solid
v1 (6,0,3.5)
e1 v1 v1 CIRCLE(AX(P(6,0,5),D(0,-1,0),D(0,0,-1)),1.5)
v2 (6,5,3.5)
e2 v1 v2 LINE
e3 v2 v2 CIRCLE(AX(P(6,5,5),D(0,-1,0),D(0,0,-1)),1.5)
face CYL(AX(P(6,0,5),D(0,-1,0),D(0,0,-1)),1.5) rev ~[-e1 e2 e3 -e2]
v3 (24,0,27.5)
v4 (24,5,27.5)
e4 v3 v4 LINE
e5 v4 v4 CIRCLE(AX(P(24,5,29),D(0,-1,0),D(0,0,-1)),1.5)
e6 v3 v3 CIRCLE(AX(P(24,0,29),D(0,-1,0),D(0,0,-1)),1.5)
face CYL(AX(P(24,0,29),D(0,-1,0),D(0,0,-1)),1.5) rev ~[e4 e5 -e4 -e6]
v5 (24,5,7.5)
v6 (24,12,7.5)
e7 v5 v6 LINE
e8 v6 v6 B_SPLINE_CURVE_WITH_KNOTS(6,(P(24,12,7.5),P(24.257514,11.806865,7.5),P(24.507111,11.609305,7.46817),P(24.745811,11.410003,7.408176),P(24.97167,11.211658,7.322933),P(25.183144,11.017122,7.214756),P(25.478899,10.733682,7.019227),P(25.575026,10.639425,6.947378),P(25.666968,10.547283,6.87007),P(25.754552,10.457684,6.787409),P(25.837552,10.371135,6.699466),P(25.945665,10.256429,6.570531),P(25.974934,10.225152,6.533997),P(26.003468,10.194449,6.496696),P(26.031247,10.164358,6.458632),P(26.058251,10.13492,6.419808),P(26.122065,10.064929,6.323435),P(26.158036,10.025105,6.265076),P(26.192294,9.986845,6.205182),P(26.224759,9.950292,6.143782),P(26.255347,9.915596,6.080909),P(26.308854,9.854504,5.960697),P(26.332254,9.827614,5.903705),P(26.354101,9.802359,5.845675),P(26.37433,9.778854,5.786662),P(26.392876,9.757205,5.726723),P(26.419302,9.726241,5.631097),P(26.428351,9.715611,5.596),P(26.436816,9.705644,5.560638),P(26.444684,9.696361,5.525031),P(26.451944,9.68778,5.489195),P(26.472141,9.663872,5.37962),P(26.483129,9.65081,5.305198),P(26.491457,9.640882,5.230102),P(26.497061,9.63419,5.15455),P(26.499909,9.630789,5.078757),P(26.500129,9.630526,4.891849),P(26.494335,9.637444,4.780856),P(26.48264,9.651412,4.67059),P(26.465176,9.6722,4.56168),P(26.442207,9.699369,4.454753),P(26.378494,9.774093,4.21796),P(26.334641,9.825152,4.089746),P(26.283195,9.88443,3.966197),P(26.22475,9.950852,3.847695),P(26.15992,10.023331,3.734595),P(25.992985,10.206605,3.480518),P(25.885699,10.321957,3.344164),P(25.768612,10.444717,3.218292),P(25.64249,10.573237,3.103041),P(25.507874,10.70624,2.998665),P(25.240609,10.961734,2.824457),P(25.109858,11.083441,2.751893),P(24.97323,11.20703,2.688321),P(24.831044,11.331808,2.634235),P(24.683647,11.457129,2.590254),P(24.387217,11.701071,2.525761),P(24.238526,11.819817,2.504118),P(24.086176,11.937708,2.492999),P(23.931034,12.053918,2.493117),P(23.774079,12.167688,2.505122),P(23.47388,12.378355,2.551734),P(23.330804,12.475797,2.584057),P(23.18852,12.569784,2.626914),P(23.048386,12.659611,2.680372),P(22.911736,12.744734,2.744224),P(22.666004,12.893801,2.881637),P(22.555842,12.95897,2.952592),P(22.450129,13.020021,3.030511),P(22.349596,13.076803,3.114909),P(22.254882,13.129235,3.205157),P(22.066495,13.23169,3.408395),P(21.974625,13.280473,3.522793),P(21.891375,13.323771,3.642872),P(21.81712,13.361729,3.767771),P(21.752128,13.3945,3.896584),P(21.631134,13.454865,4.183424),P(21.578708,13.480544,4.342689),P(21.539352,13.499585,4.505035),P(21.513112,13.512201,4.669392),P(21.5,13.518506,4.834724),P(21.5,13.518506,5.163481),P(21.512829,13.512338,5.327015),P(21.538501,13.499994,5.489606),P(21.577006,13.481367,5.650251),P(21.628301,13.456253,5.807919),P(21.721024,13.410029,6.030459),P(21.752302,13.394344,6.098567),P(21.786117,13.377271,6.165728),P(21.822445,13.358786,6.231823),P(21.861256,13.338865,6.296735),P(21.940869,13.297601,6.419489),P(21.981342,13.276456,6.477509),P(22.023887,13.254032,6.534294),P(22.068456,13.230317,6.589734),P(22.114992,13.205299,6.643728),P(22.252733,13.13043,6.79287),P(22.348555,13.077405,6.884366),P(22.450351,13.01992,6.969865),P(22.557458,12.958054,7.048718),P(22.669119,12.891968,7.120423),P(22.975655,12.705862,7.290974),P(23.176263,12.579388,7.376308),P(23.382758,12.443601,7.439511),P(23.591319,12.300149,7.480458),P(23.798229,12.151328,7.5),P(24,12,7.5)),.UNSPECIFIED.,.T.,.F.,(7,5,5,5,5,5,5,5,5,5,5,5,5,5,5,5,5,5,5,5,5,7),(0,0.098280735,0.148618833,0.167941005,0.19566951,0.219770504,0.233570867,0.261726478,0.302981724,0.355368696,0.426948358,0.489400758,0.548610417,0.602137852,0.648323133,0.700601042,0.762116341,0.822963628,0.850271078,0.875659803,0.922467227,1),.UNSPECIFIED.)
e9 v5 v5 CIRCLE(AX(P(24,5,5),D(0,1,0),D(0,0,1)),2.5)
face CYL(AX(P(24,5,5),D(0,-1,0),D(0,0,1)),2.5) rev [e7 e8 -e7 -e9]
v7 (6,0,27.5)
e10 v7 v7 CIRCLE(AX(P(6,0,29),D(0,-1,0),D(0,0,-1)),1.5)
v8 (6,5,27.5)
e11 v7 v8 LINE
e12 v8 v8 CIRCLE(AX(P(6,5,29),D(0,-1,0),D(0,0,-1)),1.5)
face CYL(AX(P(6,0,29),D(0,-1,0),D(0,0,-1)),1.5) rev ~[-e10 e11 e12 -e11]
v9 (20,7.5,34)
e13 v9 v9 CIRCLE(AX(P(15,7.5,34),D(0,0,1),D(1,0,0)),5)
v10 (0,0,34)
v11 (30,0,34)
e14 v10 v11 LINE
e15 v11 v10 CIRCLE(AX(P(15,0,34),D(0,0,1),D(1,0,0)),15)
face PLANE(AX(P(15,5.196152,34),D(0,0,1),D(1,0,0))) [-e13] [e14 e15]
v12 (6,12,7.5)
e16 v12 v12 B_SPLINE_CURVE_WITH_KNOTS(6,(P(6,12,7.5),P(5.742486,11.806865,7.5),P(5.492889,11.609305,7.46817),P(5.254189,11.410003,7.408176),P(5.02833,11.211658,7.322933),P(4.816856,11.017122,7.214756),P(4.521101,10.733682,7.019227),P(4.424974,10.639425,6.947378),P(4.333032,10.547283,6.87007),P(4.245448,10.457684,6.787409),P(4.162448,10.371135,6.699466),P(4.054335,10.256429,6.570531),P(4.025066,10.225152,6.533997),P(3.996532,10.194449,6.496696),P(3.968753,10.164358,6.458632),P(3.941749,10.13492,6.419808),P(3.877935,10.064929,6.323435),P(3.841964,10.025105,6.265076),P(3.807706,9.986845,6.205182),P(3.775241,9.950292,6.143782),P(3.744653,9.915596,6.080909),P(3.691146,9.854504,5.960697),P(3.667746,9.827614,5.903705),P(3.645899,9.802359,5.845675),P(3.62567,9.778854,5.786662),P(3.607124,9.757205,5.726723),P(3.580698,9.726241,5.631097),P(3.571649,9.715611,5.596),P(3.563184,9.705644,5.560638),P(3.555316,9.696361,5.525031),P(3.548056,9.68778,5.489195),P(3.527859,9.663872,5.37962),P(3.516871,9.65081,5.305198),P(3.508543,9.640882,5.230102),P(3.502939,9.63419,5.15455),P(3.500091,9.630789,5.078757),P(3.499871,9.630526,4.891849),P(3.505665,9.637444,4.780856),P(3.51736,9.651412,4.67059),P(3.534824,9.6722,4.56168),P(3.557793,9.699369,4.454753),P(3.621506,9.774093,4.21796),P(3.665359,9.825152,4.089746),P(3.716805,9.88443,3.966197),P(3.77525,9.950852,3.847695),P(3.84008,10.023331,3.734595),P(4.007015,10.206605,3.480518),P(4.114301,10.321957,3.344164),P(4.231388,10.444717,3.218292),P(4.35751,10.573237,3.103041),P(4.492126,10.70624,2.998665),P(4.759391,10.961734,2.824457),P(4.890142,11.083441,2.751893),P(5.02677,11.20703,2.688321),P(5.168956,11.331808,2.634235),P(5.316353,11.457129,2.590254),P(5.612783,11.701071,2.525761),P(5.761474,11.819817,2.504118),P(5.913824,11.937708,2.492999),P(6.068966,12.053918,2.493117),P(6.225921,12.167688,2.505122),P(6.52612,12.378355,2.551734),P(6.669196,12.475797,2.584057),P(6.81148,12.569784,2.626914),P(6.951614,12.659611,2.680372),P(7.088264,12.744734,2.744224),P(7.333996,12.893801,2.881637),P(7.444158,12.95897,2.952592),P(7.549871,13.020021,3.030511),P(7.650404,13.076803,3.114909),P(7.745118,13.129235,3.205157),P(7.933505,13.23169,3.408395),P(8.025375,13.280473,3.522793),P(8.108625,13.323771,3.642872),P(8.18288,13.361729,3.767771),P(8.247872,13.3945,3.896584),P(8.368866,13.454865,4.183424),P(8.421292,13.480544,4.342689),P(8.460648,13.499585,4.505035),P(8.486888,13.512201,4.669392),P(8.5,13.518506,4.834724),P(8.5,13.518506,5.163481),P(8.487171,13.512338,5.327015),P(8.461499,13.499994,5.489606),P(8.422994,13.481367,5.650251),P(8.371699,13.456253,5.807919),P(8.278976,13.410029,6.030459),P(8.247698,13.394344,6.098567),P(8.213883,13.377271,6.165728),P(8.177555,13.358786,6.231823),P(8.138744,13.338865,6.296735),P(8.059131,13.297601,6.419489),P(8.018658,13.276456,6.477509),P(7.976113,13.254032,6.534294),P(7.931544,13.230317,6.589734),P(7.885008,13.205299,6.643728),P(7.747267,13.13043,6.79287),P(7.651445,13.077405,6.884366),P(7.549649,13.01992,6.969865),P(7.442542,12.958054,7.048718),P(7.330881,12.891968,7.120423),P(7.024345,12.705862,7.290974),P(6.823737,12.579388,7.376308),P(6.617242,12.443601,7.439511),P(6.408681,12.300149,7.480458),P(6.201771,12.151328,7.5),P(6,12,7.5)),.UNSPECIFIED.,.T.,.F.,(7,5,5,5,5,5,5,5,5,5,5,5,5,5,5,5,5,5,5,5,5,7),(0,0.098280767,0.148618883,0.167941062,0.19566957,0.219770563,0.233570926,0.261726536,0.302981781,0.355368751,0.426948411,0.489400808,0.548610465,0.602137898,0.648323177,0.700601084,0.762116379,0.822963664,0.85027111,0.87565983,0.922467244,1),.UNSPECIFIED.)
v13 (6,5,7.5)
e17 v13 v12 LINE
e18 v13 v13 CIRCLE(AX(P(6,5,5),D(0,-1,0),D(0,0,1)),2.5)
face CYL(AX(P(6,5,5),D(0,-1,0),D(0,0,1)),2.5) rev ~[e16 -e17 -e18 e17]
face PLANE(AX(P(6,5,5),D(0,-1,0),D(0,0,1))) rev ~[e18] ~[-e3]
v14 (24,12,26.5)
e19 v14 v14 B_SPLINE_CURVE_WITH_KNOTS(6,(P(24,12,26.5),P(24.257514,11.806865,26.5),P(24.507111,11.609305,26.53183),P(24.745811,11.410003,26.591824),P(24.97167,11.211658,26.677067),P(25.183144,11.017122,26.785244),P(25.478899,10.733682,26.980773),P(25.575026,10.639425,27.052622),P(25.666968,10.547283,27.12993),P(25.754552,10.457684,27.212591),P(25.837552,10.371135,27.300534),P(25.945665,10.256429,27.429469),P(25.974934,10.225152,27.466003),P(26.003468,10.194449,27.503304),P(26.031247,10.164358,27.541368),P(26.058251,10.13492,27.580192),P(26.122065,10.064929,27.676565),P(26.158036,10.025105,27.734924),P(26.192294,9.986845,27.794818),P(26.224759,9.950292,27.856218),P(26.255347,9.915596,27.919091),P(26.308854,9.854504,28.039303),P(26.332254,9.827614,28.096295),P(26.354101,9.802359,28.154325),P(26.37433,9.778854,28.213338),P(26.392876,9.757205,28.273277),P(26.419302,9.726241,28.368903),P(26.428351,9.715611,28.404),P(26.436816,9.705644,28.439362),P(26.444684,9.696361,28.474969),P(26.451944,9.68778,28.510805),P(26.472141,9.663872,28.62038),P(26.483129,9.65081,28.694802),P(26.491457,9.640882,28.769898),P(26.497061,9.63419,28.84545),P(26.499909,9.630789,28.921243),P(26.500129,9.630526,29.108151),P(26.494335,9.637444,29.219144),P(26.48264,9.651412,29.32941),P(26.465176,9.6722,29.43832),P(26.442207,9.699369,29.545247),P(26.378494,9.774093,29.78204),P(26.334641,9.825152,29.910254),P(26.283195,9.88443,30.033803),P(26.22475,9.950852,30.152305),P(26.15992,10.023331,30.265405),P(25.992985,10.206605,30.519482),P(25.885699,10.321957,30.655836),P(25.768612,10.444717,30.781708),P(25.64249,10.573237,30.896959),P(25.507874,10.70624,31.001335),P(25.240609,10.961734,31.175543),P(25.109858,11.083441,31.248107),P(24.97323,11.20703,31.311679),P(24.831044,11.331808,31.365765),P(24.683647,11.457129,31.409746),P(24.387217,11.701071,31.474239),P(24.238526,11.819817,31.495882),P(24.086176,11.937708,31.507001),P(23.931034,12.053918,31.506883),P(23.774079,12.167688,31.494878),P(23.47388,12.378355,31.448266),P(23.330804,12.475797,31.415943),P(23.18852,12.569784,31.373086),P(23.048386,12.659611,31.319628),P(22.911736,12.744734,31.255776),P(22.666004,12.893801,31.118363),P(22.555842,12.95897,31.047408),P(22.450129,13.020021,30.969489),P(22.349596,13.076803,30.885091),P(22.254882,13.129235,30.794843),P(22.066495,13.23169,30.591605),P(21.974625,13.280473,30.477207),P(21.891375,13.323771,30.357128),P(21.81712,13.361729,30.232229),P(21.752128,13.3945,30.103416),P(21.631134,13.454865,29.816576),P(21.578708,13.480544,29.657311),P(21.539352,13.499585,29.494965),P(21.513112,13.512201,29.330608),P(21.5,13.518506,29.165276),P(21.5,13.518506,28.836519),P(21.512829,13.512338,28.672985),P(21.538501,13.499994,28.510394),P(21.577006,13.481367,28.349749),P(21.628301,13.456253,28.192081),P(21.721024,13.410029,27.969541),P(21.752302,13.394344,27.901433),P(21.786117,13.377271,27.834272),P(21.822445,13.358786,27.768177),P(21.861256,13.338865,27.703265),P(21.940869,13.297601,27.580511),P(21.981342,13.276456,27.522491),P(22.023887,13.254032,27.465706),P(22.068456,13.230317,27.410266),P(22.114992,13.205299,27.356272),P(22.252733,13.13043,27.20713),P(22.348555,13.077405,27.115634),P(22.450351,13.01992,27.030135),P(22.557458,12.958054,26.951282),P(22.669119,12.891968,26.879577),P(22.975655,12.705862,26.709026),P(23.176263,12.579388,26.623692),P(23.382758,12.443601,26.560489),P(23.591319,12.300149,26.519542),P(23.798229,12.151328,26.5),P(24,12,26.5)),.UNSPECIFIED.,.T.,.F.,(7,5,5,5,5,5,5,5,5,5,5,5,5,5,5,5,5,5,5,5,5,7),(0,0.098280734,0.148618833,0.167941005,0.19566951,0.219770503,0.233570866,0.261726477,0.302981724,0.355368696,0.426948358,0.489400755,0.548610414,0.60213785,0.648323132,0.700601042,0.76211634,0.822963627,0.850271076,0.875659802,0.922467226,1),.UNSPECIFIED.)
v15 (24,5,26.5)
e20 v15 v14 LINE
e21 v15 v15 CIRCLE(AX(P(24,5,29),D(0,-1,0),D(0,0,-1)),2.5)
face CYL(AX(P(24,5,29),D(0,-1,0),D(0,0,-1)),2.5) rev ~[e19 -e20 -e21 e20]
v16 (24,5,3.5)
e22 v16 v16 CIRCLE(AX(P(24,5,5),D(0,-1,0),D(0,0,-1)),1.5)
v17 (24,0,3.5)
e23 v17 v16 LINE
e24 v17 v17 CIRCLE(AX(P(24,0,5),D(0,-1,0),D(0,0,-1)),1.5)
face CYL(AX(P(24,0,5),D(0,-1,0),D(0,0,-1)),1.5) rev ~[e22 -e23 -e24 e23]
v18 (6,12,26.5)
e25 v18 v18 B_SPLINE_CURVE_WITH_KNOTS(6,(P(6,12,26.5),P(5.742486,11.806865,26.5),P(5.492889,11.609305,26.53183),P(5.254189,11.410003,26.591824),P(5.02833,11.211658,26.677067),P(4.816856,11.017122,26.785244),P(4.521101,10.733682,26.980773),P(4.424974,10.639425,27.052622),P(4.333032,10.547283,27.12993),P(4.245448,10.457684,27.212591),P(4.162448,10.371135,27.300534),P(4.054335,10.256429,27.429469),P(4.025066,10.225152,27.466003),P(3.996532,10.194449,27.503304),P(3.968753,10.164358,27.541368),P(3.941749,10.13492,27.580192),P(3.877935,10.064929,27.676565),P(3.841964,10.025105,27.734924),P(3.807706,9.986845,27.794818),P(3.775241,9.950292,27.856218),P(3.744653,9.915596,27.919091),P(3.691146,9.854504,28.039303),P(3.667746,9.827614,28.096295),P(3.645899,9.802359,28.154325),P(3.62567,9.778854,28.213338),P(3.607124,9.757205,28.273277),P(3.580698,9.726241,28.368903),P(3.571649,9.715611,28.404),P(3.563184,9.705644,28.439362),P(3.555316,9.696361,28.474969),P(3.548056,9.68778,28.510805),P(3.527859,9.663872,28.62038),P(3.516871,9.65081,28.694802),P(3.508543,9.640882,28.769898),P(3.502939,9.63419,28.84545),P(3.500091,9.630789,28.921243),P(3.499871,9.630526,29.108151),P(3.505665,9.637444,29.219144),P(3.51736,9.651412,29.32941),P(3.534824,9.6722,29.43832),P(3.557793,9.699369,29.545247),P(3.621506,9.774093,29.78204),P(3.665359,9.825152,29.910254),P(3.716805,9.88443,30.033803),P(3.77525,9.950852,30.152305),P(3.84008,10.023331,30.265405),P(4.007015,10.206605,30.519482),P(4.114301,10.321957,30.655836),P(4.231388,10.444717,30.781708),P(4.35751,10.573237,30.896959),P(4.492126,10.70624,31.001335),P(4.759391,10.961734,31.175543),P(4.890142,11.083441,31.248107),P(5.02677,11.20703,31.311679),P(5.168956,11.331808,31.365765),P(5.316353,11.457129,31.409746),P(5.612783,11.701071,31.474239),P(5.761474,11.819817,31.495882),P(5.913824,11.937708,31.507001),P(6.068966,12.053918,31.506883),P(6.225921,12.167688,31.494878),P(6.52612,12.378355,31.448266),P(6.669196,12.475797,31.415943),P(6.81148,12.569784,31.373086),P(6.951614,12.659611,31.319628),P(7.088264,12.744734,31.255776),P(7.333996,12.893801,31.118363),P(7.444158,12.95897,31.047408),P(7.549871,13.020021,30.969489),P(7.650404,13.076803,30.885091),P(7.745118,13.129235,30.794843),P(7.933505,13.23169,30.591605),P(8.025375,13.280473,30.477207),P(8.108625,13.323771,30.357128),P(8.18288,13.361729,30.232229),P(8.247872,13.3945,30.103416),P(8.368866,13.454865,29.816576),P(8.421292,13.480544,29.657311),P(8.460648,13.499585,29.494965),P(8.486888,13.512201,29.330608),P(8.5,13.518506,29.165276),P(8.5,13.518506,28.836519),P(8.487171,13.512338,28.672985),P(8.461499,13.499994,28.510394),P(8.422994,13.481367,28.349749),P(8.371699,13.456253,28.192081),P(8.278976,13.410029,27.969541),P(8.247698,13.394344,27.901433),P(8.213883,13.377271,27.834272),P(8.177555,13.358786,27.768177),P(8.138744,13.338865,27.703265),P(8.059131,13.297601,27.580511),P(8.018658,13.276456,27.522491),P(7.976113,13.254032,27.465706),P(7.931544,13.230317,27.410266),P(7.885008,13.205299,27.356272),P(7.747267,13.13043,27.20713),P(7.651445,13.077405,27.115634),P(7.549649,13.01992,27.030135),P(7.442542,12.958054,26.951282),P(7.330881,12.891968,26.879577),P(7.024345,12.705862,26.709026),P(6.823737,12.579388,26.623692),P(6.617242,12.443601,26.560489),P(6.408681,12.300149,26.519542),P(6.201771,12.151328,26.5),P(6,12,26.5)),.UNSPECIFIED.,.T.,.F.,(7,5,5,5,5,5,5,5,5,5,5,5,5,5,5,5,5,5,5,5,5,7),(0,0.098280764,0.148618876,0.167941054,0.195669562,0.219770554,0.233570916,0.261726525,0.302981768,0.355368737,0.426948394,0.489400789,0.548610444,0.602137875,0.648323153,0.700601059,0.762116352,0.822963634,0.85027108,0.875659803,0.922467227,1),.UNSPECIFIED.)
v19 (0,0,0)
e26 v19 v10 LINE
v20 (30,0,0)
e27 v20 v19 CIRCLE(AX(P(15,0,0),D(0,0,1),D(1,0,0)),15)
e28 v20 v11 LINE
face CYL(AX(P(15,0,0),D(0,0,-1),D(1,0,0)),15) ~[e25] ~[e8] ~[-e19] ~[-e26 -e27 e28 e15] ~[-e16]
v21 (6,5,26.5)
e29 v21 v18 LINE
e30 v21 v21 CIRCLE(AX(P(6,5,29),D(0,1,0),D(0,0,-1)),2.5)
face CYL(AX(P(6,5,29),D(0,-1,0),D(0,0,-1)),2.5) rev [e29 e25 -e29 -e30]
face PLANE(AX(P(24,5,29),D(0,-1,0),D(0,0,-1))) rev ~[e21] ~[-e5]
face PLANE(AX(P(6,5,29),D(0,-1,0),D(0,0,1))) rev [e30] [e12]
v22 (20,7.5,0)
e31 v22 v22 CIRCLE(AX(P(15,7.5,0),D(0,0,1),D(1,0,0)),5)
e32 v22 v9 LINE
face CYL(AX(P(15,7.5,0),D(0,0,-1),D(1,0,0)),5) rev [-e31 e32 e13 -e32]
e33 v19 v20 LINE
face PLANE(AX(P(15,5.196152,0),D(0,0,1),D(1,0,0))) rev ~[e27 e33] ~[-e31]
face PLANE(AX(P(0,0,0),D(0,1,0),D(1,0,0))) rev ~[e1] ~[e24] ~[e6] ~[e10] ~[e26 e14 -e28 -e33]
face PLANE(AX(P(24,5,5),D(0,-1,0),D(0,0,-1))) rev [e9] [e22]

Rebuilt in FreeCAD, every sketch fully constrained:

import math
import FreeCAD as App
import Part
import Sketcher
from FreeCAD import Vector

doc = App.newDocument("Part")
params = doc.addObject("Spreadsheet::Sheet", "Params")
for row, (alias, value) in enumerate([
    ("sketch1_diameter", "10 mm"),
    ("sketch1_radius", "15 mm"),
    ("pad1_length", "34 mm"),
    ("sketch2_diameter", "3 mm"),
    ("sketch3_diameter", "5 mm"),
    ("sketch4_diameter", "5 mm"),
], start=1):
    params.set(f"A{row}", alias)
    params.set(f"B{row}", "=" + value)
    params.setAlias(f"B{row}", alias)

body = doc.addObject("PartDesign::Body", "Body")

# Sketch on XY plane
sketch1 = doc.addObject("Sketcher::SketchObject", "Sketch")
body.addObject(sketch1)
sketch1.AttachmentSupport = (doc.XY_Plane, [""])
sketch1.MapMode = "FlatFace"
sketch1.addGeometry([
    Part.LineSegment(Vector(0, 0, 0), Vector(30, 0, 0)),
    Part.ArcOfCircle(Part.Circle(Vector(15, 0, 0), Vector(0, 0, 1), 15), math.radians(0), math.radians(180)),
    Part.Circle(Vector(15, 8, 0), Vector(0, 0, 1), 5),
], False)
sketch1.addConstraint([
    Sketcher.Constraint("Coincident", 0, 1, 1, 2),
    Sketcher.Constraint("Coincident", 1, 1, 0, 2),
    Sketcher.Constraint("Horizontal", 0),
    Sketcher.Constraint("Coincident", 0, 1, -1, 1),
    Sketcher.Constraint("PointOnObject", 1, 3, -1),
    Sketcher.Constraint("Vertical", 1, 3, 2, 3),
    Sketcher.Constraint("Diameter", 2, 10.0),
    Sketcher.Constraint("Radius", 1, 15.0),
    Sketcher.Constraint("DistanceY", -1, 1, 2, 3, 7.5),
])
sketch1.setExpression("Constraints[6]", "Params.sketch1_diameter")
sketch1.setExpression("Constraints[7]", "Params.sketch1_radius")
pad1 = doc.addObject("PartDesign::Pad", "Pad")
body.addObject(pad1)
pad1.Profile = sketch1
pad1.setExpression("Length", "Params.pad1_length")

# Sketch on XZ plane
sketch2 = doc.addObject("Sketcher::SketchObject", "Sketch001")
body.addObject(sketch2)
sketch2.AttachmentSupport = (doc.XZ_Plane, [""])
sketch2.MapMode = "FlatFace"
sketch2.addGeometry([
    Part.Circle(Vector(24, 29, 0), Vector(0, 0, 1), 1.5),
    Part.Circle(Vector(24, 5, 0), Vector(0, 0, 1), 1.5),
    Part.Circle(Vector(6, 5, 0), Vector(0, 0, 1), 1.5),
    Part.Circle(Vector(6, 29, 0), Vector(0, 0, 1), 1.5),
], False)
sketch2.addConstraint([
    Sketcher.Constraint("Equal", 0, 1),
    Sketcher.Constraint("Equal", 1, 2),
    Sketcher.Constraint("Equal", 2, 3),
    Sketcher.Constraint("Horizontal", 1, 3, 2, 3),
    Sketcher.Constraint("Horizontal", 0, 3, 3, 3),
    Sketcher.Constraint("Vertical", 0, 3, 1, 3),
    Sketcher.Constraint("Vertical", 2, 3, 3, 3),
    Sketcher.Constraint("Diameter", 0, 3.0),
    Sketcher.Constraint("DistanceX", -1, 1, 0, 3, 24.0),
    Sketcher.Constraint("DistanceY", -1, 1, 0, 3, 29.0),
    Sketcher.Constraint("DistanceY", -1, 1, 1, 3, 5.0),
    Sketcher.Constraint("DistanceX", -1, 1, 2, 3, 6.0),
])
sketch2.setExpression("Constraints[7]", "Params.sketch2_diameter")
pocket1 = doc.addObject("PartDesign::Pocket", "Pocket")
body.addObject(pocket1)
pocket1.Profile = sketch2
pocket1.Type = "ThroughAll"

# Sketch on XZ plane
sketch3 = doc.addObject("Sketcher::SketchObject", "Sketch002")
body.addObject(sketch3)
sketch3.AttachmentSupport = (doc.XZ_Plane, [""])
sketch3.MapMode = "FlatFace"
sketch3.AttachmentOffset = App.Placement(Vector(0, 0, -5), App.Rotation())
sketch3.addGeometry(Part.Circle(Vector(24, 29, 0), Vector(0, 0, 1), 2.5), False)
sketch3.addConstraint([
    Sketcher.Constraint("Diameter", 0, 5.0),
    Sketcher.Constraint("DistanceX", -1, 1, 0, 3, 24.0),
    Sketcher.Constraint("DistanceY", -1, 1, 0, 3, 29.0),
])
sketch3.setExpression("Constraints[0]", "Params.sketch3_diameter")
pocket2 = doc.addObject("PartDesign::Pocket", "Pocket001")
body.addObject(pocket2)
pocket2.Profile = sketch3
pocket2.Type = "ThroughAll"
doc.recompute()

datumplane = doc.addObject("PartDesign::Plane", "DatumPlane")
body.addObject(datumplane)
datumplane.AttachmentSupport = (doc.YZ_Plane, [""])
datumplane.MapMode = "FlatFace"
datumplane.AttachmentOffset = App.Placement(Vector(0, 0, 15), App.Rotation())
mirrored = doc.addObject("PartDesign::Mirrored", "Mirrored")
body.addObject(mirrored)
mirrored.Originals = [pocket2]
mirrored.MirrorPlane = (datumplane, [""])
body.Tip = mirrored
doc.recompute()

datumplane2 = doc.addObject("PartDesign::Plane", "DatumPlane001")
body.addObject(datumplane2)
datumplane2.AttachmentSupport = (doc.XY_Plane, [""])
datumplane2.MapMode = "FlatFace"
datumplane2.AttachmentOffset = App.Placement(Vector(0, 0, 17), App.Rotation())
mirrored2 = doc.addObject("PartDesign::Mirrored", "Mirrored001")
body.addObject(mirrored2)
mirrored2.Originals = [pocket2]
mirrored2.MirrorPlane = (datumplane2, [""])
body.Tip = mirrored2

# Sketch on XZ plane
sketch4 = doc.addObject("Sketcher::SketchObject", "Sketch003")
body.addObject(sketch4)
sketch4.AttachmentSupport = (doc.XZ_Plane, [""])
sketch4.MapMode = "FlatFace"
sketch4.AttachmentOffset = App.Placement(Vector(0, 0, -5), App.Rotation())
sketch4.addGeometry(Part.Circle(Vector(6, 5, 0), Vector(0, 0, 1), 2.5), False)
sketch4.addConstraint([
    Sketcher.Constraint("Diameter", 0, 5.0),
    Sketcher.Constraint("DistanceX", -1, 1, 0, 3, 6.0),
    Sketcher.Constraint("DistanceY", -1, 1, 0, 3, 5.0),
])
sketch4.setExpression("Constraints[0]", "Params.sketch4_diameter")
pocket3 = doc.addObject("PartDesign::Pocket", "Pocket002")
body.addObject(pocket3)
pocket3.Profile = sketch4
pocket3.Type = "ThroughAll"

doc.recompute()
